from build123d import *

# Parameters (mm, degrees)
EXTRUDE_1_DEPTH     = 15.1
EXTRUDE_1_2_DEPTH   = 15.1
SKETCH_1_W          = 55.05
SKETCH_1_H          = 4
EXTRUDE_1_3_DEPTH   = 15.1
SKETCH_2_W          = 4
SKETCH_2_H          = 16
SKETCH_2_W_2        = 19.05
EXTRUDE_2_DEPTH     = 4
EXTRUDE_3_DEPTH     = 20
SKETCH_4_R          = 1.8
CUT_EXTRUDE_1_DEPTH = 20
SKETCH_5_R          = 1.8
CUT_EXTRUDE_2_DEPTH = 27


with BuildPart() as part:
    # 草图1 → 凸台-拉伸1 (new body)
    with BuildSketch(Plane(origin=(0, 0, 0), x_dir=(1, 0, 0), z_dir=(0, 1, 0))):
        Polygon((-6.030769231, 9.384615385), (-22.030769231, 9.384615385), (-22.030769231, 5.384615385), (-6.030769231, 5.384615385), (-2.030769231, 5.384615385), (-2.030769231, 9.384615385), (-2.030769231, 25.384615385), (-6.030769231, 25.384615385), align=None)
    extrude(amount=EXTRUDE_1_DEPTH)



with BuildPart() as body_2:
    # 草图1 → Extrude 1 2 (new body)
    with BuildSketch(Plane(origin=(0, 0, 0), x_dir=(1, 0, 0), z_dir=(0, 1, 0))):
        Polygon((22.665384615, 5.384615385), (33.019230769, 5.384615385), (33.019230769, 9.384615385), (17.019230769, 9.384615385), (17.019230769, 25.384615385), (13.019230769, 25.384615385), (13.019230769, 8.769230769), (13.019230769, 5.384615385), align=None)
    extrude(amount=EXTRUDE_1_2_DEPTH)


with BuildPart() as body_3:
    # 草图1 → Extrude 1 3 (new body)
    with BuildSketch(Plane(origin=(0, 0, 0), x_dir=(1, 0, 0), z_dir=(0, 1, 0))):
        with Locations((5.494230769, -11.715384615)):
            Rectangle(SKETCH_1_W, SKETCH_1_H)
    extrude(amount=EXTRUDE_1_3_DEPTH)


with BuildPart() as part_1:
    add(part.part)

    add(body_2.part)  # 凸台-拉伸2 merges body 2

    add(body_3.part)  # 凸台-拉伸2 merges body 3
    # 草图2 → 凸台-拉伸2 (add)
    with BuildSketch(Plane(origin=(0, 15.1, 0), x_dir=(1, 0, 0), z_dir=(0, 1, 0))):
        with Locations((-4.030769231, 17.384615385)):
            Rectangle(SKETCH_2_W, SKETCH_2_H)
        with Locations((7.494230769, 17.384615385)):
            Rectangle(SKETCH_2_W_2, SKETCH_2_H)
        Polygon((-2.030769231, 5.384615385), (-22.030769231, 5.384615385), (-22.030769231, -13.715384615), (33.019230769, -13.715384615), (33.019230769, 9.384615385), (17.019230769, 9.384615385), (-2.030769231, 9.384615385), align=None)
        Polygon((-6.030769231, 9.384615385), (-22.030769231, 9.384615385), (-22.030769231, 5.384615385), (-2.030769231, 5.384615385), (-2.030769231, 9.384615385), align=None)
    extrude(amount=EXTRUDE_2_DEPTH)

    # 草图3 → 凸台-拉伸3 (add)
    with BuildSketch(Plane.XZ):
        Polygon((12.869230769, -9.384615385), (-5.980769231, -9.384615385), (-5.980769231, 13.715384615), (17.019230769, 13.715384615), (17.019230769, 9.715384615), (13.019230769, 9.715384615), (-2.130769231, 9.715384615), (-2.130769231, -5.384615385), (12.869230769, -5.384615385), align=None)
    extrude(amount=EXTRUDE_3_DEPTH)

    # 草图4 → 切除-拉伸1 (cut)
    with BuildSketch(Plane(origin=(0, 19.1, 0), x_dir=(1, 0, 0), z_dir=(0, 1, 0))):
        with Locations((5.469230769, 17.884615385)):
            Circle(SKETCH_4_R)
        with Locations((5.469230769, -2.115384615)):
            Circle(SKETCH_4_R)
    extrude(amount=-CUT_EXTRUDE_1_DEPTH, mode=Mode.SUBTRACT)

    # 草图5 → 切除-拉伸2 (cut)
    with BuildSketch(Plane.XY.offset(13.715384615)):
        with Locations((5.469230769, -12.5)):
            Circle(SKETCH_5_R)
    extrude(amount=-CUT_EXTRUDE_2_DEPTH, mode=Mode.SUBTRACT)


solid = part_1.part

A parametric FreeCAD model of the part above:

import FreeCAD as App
import Part
import Sketcher
Q = App.Units.Quantity

doc = App.newDocument("Part")
params = doc.addObject("Spreadsheet::Sheet", "Params")
for row, (alias, value) in enumerate([
    ("sketch1_width", "16 mm"),
    ("sketch1_width2", "20 mm"),
    ("pad1_length", "15.1 mm"),
    ("sketch2_width", "16 mm"),
    ("sketch2_width2", "4 mm"),
    ("pad2_length", "15.1 mm"),
    ("sketch3_height", "4 mm"),
    ("sketch3_width", "55.05 mm"),
    ("pad3_length", "15.1 mm"),
    ("sketch4_width", "16 mm"),
    ("sketch4_height", "23.1 mm"),
    ("sketch4_width2", "55.05 mm"),
    ("pad4_length", "4 mm"),
    ("sketch5_width", "15 mm"),
    ("sketch5_width2", "23 mm"),
    ("sketch5_height", "4 mm"),
    ("sketch5_height2", "15.1 mm"),
    ("sketch5_width3", "18.85 mm"),
    ("pad5_length", "20 mm"),
    ("sketch6_diameter", "3.6 mm"),
    ("pocket1_length", "20 mm"),
    ("sketch7_diameter", "3.6 mm"),
    ("pocket2_length", "27 mm"),
], start=1):
    params.set(f"A{row}", alias)
    params.set(f"B{row}", "=" + value)
    params.setAlias(f"B{row}", alias)

body = doc.addObject("PartDesign::Body", "Body")

# Sketch on XZ plane
sketch1 = body.newObject("Sketcher::SketchObject", "Sketch")
sketch1.AttachmentSupport = (doc.getObject("XZ_Plane"), [""])
sketch1.MapMode = "FlatFace"
sketch1.addGeometry([
    Part.LineSegment(App.Vector(-6, -9.4, 0), App.Vector(-22, -9.4, 0)),  # 0
    Part.LineSegment(App.Vector(-22, -9.4, 0), App.Vector(-22, -5.4, 0)),  # 1
    Part.LineSegment(App.Vector(-22, -5.4, 0), App.Vector(-2, -5.4, 0)),  # 2
    Part.LineSegment(App.Vector(-2, -5.4, 0), App.Vector(-2, -25.4, 0)),  # 3
    Part.LineSegment(App.Vector(-2, -25.4, 0), App.Vector(-6, -25.4, 0)),  # 4
    Part.LineSegment(App.Vector(-6, -25.4, 0), App.Vector(-6, -9.4, 0)),  # 5
], False)
sketch1.addConstraint([
    Sketcher.Constraint("Coincident", 0, 2, 1, 1),
    Sketcher.Constraint("Coincident", 1, 2, 2, 1),
    Sketcher.Constraint("Coincident", 2, 2, 3, 1),
    Sketcher.Constraint("Coincident", 3, 2, 4, 1),
    Sketcher.Constraint("Coincident", 4, 2, 5, 1),
    Sketcher.Constraint("Coincident", 5, 2, 0, 1),
    Sketcher.Constraint("Horizontal", 0),
    Sketcher.Constraint("Vertical", 1),
    Sketcher.Constraint("Horizontal", 2),
    Sketcher.Constraint("Vertical", 3),
    Sketcher.Constraint("Horizontal", 4),
    Sketcher.Constraint("Vertical", 5),
    Sketcher.Constraint("Equal", 4, 1),
    Sketcher.Constraint("Equal", 2, 3),
    Sketcher.Constraint("DistanceX", 0, 2, 0, 1, Q("16 mm")),
    Sketcher.Constraint("DistanceX", 2, 1, 2, 2, Q("20 mm")),
    Sketcher.Constraint("DistanceX", 0, 2, -1, 1, Q("22.030769 mm")),
    Sketcher.Constraint("DistanceY", 0, 2, -1, 1, Q("9.384615 mm")),
])
sketch1.setExpression("Constraints[14]", "Params.sketch1_width")
sketch1.setExpression("Constraints[15]", "Params.sketch1_width2")
pad1 = body.newObject("PartDesign::Pad", "Pad")
pad1.Profile = sketch1
pad1.setExpression("Length", "Params.pad1_length")
pad1.Reversed = True
body2 = doc.addObject("PartDesign::Body", "Body001")

# Sketch on XZ plane
sketch2 = body2.newObject("Sketcher::SketchObject", "Sketch001")
sketch2.AttachmentSupport = (doc.getObject("XZ_Plane001"), [""])
sketch2.MapMode = "FlatFace"
sketch2.addGeometry([
    Part.LineSegment(App.Vector(33, -5.4, 0), App.Vector(33, -9.4, 0)),  # 0
    Part.LineSegment(App.Vector(33, -9.4, 0), App.Vector(17, -9.4, 0)),  # 1
    Part.LineSegment(App.Vector(17, -9.4, 0), App.Vector(17, -25.4, 0)),  # 2
    Part.LineSegment(App.Vector(17, -25.4, 0), App.Vector(13, -25.4, 0)),  # 3
    Part.LineSegment(App.Vector(13, -25.4, 0), App.Vector(13, -5.4, 0)),  # 4
    Part.LineSegment(App.Vector(13, -5.4, 0), App.Vector(33, -5.4, 0)),  # 5
], False)
sketch2.addConstraint([
    Sketcher.Constraint("Coincident", 0, 2, 1, 1),
    Sketcher.Constraint("Coincident", 1, 2, 2, 1),
    Sketcher.Constraint("Coincident", 2, 2, 3, 1),
    Sketcher.Constraint("Coincident", 3, 2, 4, 1),
    Sketcher.Constraint("Coincident", 4, 2, 5, 1),
    Sketcher.Constraint("Coincident", 5, 2, 0, 1),
    Sketcher.Constraint("Vertical", 0),
    Sketcher.Constraint("Horizontal", 1),
    Sketcher.Constraint("Vertical", 2),
    Sketcher.Constraint("Horizontal", 3),
    Sketcher.Constraint("Vertical", 4),
    Sketcher.Constraint("Horizontal", 5),
    Sketcher.Constraint("Equal", 3, 0),
    Sketcher.Constraint("Equal", 1, 2),
    Sketcher.Constraint("DistanceX", 1, 2, 1, 1, Q("16 mm")),
    Sketcher.Constraint("DistanceX", 3, 2, 3, 1, Q("4 mm")),
    Sketcher.Constraint("DistanceX", -1, 1, 0, 2, Q("33.019231 mm")),
    Sketcher.Constraint("DistanceY", 0, 2, -1, 1, Q("9.384615 mm")),
])
sketch2.setExpression("Constraints[14]", "Params.sketch2_width")
sketch2.setExpression("Constraints[15]", "Params.sketch2_width2")
pad2 = body2.newObject("PartDesign::Pad", "Pad001")
pad2.Profile = sketch2
pad2.setExpression("Length", "Params.pad2_length")
pad2.Reversed = True
body3 = doc.addObject("PartDesign::Body", "Body002")

# Sketch on XZ plane
sketch3 = body3.newObject("Sketcher::SketchObject", "Sketch002")
sketch3.AttachmentSupport = (doc.getObject("XZ_Plane002"), [""])
sketch3.MapMode = "FlatFace"
sketch3.addGeometry([
    Part.LineSegment(App.Vector(-22, 9.7, 0), App.Vector(-22, 13.7, 0)),
    Part.LineSegment(App.Vector(-22, 13.7, 0), App.Vector(33, 13.7, 0)),
    Part.LineSegment(App.Vector(33, 13.7, 0), App.Vector(33, 9.7, 0)),
    Part.LineSegment(App.Vector(33, 9.7, 0), App.Vector(-22, 9.7, 0)),
], False)
sketch3.addConstraint([
    Sketcher.Constraint("Coincident", 0, 2, 1, 1),
    Sketcher.Constraint("Coincident", 1, 2, 2, 1),
    Sketcher.Constraint("Coincident", 2, 2, 3, 1),
    Sketcher.Constraint("Coincident", 3, 2, 0, 1),
    Sketcher.Constraint("Vertical", 0),
    Sketcher.Constraint("Horizontal", 1),
    Sketcher.Constraint("Vertical", 2),
    Sketcher.Constraint("Horizontal", 3),
    Sketcher.Constraint("DistanceY", 0, 1, 0, 2, Q("4 mm")),
    Sketcher.Constraint("DistanceX", 1, 1, 1, 2, Q("55.05 mm")),
    Sketcher.Constraint("DistanceX", 0, 2, -1, 1, Q("22.030769 mm")),
    Sketcher.Constraint("DistanceY", -1, 1, 0, 2, Q("13.715385 mm")),
])
sketch3.setExpression("Constraints[8]", "Params.sketch3_height")
sketch3.setExpression("Constraints[9]", "Params.sketch3_width")
pad3 = body3.newObject("PartDesign::Pad", "Pad002")
pad3.Profile = sketch3
pad3.setExpression("Length", "Params.pad3_length")
pad3.Reversed = True
body.AllowCompound = True
doc.recompute()

boolean = body.newObject("PartDesign::Boolean", "Boolean")
boolean.Type = "Fuse"
boolean.addObjects([body2])
doc.recompute()

boolean2 = body.newObject("PartDesign::Boolean", "Boolean001")
boolean2.Type = "Fuse"
boolean2.addObjects([body3])

# Sketch on XZ plane
sketch4 = body.newObject("Sketcher::SketchObject", "Sketch003")
sketch4.AttachmentSupport = (doc.getObject("XZ_Plane"), [""])
sketch4.MapMode = "FlatFace"
sketch4.AttachmentOffset = App.Placement(App.Vector(0, 0, -15.1), App.Rotation())
sketch4.addGeometry([
    Part.LineSegment(App.Vector(-6, -25, 0), App.Vector(-6, -9, 0)),  # 0
    Part.LineSegment(App.Vector(-6, -9, 0), App.Vector(-22, -9, 0)),  # 1
    Part.LineSegment(App.Vector(-22, -9, 0), App.Vector(-22, 14, 0)),  # 2
    Part.LineSegment(App.Vector(-22, 14, 0), App.Vector(33, 14, 0)),  # 3
    Part.LineSegment(App.Vector(33, 14, 0), App.Vector(33, -9, 0)),  # 4
    Part.LineSegment(App.Vector(33, -9, 0), App.Vector(17, -9, 0)),  # 5
    Part.LineSegment(App.Vector(17, -9, 0), App.Vector(17, -25, 0)),  # 6
    Part.LineSegment(App.Vector(17, -25, 0), App.Vector(-6, -25, 0)),  # 7
], False)
sketch4.addConstraint([
    Sketcher.Constraint("Coincident", 0, 2, 1, 1),
    Sketcher.Constraint("Coincident", 1, 2, 2, 1),
    Sketcher.Constraint("Coincident", 2, 2, 3, 1),
    Sketcher.Constraint("Coincident", 3, 2, 4, 1),
    Sketcher.Constraint("Coincident", 4, 2, 5, 1),
    Sketcher.Constraint("Coincident", 5, 2, 6, 1),
    Sketcher.Constraint("Coincident", 6, 2, 7, 1),
    Sketcher.Constraint("Coincident", 7, 2, 0, 1),
    Sketcher.Constraint("Vertical", 0),
    Sketcher.Constraint("Horizontal", 1),
    Sketcher.Constraint("Vertical", 2),
    Sketcher.Constraint("Horizontal", 3),
    Sketcher.Constraint("Vertical", 4),
    Sketcher.Constraint("Horizontal", 5),
    Sketcher.Constraint("Vertical", 6),
    Sketcher.Constraint("Horizontal", 7),
    Sketcher.Constraint("Horizontal", 1, 2, 4, 2),
    Sketcher.Constraint("Equal", 1, 5),
    Sketcher.Constraint("Equal", 5, 0),
    Sketcher.Constraint("DistanceX", 1, 2, 1, 1, Q("16 mm")),
    Sketcher.Constraint("DistanceY", 2, 1, 2, 2, Q("23.1 mm")),
    Sketcher.Constraint("DistanceX", 3, 1, 3, 2, Q("55.05 mm")),
    Sketcher.Constraint("DistanceX", 0, 2, -1, 1, Q("6.030769 mm")),
    Sketcher.Constraint("DistanceY", 0, 2, -1, 1, Q("9.384615 mm")),
])
sketch4.setExpression("Constraints[19]", "Params.sketch4_width")
sketch4.setExpression("Constraints[20]", "Params.sketch4_height")
sketch4.setExpression("Constraints[21]", "Params.sketch4_width2")
pad4 = body.newObject("PartDesign::Pad", "Pad003")
pad4.Profile = sketch4
pad4.setExpression("Length", "Params.pad4_length")
pad4.Reversed = True

# Sketch on XZ plane
sketch5 = body.newObject("Sketcher::SketchObject", "Sketch004")
sketch5.AttachmentSupport = (doc.getObject("XZ_Plane"), [""])
sketch5.MapMode = "FlatFace"
sketch5.addGeometry([
    Part.LineSegment(App.Vector(-6, -9.4, 0), App.Vector(12.9, -9.4, 0)),  # 0
    Part.LineSegment(App.Vector(12.9, -9.4, 0), App.Vector(12.9, -5.4, 0)),  # 1
    Part.LineSegment(App.Vector(12.9, -5.4, 0), App.Vector(-2.1, -5.4, 0)),  # 2
    Part.LineSegment(App.Vector(-2.1, -5.4, 0), App.Vector(-2.1, 9.7, 0)),  # 3
    Part.LineSegment(App.Vector(-2.1, 9.7, 0), App.Vector(17, 9.7, 0)),  # 4
    Part.LineSegment(App.Vector(17, 9.7, 0), App.Vector(17, 13.7, 0)),  # 5
    Part.LineSegment(App.Vector(17, 13.7, 0), App.Vector(-6, 13.7, 0)),  # 6
    Part.LineSegment(App.Vector(-6, 13.7, 0), App.Vector(-6, -9.4, 0)),  # 7
], False)
sketch5.addConstraint([
    Sketcher.Constraint("Coincident", 0, 2, 1, 1),
    Sketcher.Constraint("Coincident", 1, 2, 2, 1),
    Sketcher.Constraint("Coincident", 2, 2, 3, 1),
    Sketcher.Constraint("Coincident", 3, 2, 4, 1),
    Sketcher.Constraint("Coincident", 4, 2, 5, 1),
    Sketcher.Constraint("Coincident", 5, 2, 6, 1),
    Sketcher.Constraint("Coincident", 6, 2, 7, 1),
    Sketcher.Constraint("Coincident", 7, 2, 0, 1),
    Sketcher.Constraint("Horizontal", 0),
    Sketcher.Constraint("Vertical", 1),
    Sketcher.Constraint("Horizontal", 2),
    Sketcher.Constraint("Vertical", 3),
    Sketcher.Constraint("Horizontal", 4),
    Sketcher.Constraint("Vertical", 5),
    Sketcher.Constraint("Horizontal", 6),
    Sketcher.Constraint("Vertical", 7),
    Sketcher.Constraint("Equal", 1, 5),
    Sketcher.Constraint("DistanceX", 2, 2, 2, 1, Q("15 mm")),
    Sketcher.Constraint("DistanceX", 6, 2, 6, 1, Q("23 mm")),
    Sketcher.Constraint("DistanceY", 1, 1, 1, 2, Q("4 mm")),
    Sketcher.Constraint("DistanceY", 3, 1, 3, 2, Q("15.1 mm")),
    Sketcher.Constraint("DistanceX", 0, 1, 0, 2, Q("18.85 mm")),
    Sketcher.Constraint("DistanceX", -1, 1, 0, 2, Q("12.869231 mm")),
    Sketcher.Constraint("DistanceY", 0, 2, -1, 1, Q("9.384615 mm")),
])
sketch5.setExpression("Constraints[17]", "Params.sketch5_width")
sketch5.setExpression("Constraints[18]", "Params.sketch5_width2")
sketch5.setExpression("Constraints[19]", "Params.sketch5_height")
sketch5.setExpression("Constraints[20]", "Params.sketch5_height2")
sketch5.setExpression("Constraints[21]", "Params.sketch5_width3")
pad5 = body.newObject("PartDesign::Pad", "Pad004")
pad5.Profile = sketch5
pad5.setExpression("Length", "Params.pad5_length")

# Sketch on XZ plane
sketch6 = body.newObject("Sketcher::SketchObject", "Sketch005")
sketch6.AttachmentSupport = (doc.getObject("XZ_Plane"), [""])
sketch6.MapMode = "FlatFace"
sketch6.AttachmentOffset = App.Placement(App.Vector(0, 0, -19.1), App.Rotation())
sketch6.addGeometry([
    Part.Circle(App.Vector(5.5, -17.9, 0), App.Vector(0, 0, 1), 1.8),
    Part.Circle(App.Vector(5.5, 2.1, 0), App.Vector(0, 0, 1), 1.8),
], False)
sketch6.addConstraint([
    Sketcher.Constraint("Equal", 0, 1),
    Sketcher.Constraint("Vertical", 0, 3, 1, 3),
    Sketcher.Constraint("Diameter", 0, Q("3.6 mm")),
    Sketcher.Constraint("DistanceY", 0, 3, 1, 3, Q("20 mm")),
    Sketcher.Constraint("DistanceX", -1, 1, 0, 3, Q("5.469231 mm")),
    Sketcher.Constraint("DistanceY", 0, 3, -1, 1, Q("17.884615 mm")),
])
sketch6.setExpression("Constraints[2]", "Params.sketch6_diameter")
pocket1 = body.newObject("PartDesign::Pocket", "Pocket")
pocket1.Profile = sketch6
pocket1.setExpression("Length", "Params.pocket1_length")
pocket1.Reversed = True

# Sketch on XY plane
sketch7 = body.newObject("Sketcher::SketchObject", "Sketch006")
sketch7.AttachmentSupport = (doc.getObject("XY_Plane"), [""])
sketch7.MapMode = "FlatFace"
sketch7.AttachmentOffset = App.Placement(App.Vector(0, 0, 13.715385), App.Rotation())
sketch7.addGeometry(Part.Circle(App.Vector(5.5, -12.5, 0), App.Vector(0, 0, 1), 1.8), False)
sketch7.addConstraint([
    Sketcher.Constraint("Diameter", 0, Q("3.6 mm")),
    Sketcher.Constraint("DistanceY", 0, 3, -1, 1, Q("12.5 mm")),
    Sketcher.Constraint("DistanceX", -1, 1, 0, 3, Q("5.469231 mm")),
])
sketch7.setExpression("Constraints[0]", "Params.sketch7_diameter")
pocket2 = body.newObject("PartDesign::Pocket", "Pocket001")
pocket2.Profile = sketch7
pocket2.setExpression("Length", "Params.pocket2_length")

doc.recompute()
